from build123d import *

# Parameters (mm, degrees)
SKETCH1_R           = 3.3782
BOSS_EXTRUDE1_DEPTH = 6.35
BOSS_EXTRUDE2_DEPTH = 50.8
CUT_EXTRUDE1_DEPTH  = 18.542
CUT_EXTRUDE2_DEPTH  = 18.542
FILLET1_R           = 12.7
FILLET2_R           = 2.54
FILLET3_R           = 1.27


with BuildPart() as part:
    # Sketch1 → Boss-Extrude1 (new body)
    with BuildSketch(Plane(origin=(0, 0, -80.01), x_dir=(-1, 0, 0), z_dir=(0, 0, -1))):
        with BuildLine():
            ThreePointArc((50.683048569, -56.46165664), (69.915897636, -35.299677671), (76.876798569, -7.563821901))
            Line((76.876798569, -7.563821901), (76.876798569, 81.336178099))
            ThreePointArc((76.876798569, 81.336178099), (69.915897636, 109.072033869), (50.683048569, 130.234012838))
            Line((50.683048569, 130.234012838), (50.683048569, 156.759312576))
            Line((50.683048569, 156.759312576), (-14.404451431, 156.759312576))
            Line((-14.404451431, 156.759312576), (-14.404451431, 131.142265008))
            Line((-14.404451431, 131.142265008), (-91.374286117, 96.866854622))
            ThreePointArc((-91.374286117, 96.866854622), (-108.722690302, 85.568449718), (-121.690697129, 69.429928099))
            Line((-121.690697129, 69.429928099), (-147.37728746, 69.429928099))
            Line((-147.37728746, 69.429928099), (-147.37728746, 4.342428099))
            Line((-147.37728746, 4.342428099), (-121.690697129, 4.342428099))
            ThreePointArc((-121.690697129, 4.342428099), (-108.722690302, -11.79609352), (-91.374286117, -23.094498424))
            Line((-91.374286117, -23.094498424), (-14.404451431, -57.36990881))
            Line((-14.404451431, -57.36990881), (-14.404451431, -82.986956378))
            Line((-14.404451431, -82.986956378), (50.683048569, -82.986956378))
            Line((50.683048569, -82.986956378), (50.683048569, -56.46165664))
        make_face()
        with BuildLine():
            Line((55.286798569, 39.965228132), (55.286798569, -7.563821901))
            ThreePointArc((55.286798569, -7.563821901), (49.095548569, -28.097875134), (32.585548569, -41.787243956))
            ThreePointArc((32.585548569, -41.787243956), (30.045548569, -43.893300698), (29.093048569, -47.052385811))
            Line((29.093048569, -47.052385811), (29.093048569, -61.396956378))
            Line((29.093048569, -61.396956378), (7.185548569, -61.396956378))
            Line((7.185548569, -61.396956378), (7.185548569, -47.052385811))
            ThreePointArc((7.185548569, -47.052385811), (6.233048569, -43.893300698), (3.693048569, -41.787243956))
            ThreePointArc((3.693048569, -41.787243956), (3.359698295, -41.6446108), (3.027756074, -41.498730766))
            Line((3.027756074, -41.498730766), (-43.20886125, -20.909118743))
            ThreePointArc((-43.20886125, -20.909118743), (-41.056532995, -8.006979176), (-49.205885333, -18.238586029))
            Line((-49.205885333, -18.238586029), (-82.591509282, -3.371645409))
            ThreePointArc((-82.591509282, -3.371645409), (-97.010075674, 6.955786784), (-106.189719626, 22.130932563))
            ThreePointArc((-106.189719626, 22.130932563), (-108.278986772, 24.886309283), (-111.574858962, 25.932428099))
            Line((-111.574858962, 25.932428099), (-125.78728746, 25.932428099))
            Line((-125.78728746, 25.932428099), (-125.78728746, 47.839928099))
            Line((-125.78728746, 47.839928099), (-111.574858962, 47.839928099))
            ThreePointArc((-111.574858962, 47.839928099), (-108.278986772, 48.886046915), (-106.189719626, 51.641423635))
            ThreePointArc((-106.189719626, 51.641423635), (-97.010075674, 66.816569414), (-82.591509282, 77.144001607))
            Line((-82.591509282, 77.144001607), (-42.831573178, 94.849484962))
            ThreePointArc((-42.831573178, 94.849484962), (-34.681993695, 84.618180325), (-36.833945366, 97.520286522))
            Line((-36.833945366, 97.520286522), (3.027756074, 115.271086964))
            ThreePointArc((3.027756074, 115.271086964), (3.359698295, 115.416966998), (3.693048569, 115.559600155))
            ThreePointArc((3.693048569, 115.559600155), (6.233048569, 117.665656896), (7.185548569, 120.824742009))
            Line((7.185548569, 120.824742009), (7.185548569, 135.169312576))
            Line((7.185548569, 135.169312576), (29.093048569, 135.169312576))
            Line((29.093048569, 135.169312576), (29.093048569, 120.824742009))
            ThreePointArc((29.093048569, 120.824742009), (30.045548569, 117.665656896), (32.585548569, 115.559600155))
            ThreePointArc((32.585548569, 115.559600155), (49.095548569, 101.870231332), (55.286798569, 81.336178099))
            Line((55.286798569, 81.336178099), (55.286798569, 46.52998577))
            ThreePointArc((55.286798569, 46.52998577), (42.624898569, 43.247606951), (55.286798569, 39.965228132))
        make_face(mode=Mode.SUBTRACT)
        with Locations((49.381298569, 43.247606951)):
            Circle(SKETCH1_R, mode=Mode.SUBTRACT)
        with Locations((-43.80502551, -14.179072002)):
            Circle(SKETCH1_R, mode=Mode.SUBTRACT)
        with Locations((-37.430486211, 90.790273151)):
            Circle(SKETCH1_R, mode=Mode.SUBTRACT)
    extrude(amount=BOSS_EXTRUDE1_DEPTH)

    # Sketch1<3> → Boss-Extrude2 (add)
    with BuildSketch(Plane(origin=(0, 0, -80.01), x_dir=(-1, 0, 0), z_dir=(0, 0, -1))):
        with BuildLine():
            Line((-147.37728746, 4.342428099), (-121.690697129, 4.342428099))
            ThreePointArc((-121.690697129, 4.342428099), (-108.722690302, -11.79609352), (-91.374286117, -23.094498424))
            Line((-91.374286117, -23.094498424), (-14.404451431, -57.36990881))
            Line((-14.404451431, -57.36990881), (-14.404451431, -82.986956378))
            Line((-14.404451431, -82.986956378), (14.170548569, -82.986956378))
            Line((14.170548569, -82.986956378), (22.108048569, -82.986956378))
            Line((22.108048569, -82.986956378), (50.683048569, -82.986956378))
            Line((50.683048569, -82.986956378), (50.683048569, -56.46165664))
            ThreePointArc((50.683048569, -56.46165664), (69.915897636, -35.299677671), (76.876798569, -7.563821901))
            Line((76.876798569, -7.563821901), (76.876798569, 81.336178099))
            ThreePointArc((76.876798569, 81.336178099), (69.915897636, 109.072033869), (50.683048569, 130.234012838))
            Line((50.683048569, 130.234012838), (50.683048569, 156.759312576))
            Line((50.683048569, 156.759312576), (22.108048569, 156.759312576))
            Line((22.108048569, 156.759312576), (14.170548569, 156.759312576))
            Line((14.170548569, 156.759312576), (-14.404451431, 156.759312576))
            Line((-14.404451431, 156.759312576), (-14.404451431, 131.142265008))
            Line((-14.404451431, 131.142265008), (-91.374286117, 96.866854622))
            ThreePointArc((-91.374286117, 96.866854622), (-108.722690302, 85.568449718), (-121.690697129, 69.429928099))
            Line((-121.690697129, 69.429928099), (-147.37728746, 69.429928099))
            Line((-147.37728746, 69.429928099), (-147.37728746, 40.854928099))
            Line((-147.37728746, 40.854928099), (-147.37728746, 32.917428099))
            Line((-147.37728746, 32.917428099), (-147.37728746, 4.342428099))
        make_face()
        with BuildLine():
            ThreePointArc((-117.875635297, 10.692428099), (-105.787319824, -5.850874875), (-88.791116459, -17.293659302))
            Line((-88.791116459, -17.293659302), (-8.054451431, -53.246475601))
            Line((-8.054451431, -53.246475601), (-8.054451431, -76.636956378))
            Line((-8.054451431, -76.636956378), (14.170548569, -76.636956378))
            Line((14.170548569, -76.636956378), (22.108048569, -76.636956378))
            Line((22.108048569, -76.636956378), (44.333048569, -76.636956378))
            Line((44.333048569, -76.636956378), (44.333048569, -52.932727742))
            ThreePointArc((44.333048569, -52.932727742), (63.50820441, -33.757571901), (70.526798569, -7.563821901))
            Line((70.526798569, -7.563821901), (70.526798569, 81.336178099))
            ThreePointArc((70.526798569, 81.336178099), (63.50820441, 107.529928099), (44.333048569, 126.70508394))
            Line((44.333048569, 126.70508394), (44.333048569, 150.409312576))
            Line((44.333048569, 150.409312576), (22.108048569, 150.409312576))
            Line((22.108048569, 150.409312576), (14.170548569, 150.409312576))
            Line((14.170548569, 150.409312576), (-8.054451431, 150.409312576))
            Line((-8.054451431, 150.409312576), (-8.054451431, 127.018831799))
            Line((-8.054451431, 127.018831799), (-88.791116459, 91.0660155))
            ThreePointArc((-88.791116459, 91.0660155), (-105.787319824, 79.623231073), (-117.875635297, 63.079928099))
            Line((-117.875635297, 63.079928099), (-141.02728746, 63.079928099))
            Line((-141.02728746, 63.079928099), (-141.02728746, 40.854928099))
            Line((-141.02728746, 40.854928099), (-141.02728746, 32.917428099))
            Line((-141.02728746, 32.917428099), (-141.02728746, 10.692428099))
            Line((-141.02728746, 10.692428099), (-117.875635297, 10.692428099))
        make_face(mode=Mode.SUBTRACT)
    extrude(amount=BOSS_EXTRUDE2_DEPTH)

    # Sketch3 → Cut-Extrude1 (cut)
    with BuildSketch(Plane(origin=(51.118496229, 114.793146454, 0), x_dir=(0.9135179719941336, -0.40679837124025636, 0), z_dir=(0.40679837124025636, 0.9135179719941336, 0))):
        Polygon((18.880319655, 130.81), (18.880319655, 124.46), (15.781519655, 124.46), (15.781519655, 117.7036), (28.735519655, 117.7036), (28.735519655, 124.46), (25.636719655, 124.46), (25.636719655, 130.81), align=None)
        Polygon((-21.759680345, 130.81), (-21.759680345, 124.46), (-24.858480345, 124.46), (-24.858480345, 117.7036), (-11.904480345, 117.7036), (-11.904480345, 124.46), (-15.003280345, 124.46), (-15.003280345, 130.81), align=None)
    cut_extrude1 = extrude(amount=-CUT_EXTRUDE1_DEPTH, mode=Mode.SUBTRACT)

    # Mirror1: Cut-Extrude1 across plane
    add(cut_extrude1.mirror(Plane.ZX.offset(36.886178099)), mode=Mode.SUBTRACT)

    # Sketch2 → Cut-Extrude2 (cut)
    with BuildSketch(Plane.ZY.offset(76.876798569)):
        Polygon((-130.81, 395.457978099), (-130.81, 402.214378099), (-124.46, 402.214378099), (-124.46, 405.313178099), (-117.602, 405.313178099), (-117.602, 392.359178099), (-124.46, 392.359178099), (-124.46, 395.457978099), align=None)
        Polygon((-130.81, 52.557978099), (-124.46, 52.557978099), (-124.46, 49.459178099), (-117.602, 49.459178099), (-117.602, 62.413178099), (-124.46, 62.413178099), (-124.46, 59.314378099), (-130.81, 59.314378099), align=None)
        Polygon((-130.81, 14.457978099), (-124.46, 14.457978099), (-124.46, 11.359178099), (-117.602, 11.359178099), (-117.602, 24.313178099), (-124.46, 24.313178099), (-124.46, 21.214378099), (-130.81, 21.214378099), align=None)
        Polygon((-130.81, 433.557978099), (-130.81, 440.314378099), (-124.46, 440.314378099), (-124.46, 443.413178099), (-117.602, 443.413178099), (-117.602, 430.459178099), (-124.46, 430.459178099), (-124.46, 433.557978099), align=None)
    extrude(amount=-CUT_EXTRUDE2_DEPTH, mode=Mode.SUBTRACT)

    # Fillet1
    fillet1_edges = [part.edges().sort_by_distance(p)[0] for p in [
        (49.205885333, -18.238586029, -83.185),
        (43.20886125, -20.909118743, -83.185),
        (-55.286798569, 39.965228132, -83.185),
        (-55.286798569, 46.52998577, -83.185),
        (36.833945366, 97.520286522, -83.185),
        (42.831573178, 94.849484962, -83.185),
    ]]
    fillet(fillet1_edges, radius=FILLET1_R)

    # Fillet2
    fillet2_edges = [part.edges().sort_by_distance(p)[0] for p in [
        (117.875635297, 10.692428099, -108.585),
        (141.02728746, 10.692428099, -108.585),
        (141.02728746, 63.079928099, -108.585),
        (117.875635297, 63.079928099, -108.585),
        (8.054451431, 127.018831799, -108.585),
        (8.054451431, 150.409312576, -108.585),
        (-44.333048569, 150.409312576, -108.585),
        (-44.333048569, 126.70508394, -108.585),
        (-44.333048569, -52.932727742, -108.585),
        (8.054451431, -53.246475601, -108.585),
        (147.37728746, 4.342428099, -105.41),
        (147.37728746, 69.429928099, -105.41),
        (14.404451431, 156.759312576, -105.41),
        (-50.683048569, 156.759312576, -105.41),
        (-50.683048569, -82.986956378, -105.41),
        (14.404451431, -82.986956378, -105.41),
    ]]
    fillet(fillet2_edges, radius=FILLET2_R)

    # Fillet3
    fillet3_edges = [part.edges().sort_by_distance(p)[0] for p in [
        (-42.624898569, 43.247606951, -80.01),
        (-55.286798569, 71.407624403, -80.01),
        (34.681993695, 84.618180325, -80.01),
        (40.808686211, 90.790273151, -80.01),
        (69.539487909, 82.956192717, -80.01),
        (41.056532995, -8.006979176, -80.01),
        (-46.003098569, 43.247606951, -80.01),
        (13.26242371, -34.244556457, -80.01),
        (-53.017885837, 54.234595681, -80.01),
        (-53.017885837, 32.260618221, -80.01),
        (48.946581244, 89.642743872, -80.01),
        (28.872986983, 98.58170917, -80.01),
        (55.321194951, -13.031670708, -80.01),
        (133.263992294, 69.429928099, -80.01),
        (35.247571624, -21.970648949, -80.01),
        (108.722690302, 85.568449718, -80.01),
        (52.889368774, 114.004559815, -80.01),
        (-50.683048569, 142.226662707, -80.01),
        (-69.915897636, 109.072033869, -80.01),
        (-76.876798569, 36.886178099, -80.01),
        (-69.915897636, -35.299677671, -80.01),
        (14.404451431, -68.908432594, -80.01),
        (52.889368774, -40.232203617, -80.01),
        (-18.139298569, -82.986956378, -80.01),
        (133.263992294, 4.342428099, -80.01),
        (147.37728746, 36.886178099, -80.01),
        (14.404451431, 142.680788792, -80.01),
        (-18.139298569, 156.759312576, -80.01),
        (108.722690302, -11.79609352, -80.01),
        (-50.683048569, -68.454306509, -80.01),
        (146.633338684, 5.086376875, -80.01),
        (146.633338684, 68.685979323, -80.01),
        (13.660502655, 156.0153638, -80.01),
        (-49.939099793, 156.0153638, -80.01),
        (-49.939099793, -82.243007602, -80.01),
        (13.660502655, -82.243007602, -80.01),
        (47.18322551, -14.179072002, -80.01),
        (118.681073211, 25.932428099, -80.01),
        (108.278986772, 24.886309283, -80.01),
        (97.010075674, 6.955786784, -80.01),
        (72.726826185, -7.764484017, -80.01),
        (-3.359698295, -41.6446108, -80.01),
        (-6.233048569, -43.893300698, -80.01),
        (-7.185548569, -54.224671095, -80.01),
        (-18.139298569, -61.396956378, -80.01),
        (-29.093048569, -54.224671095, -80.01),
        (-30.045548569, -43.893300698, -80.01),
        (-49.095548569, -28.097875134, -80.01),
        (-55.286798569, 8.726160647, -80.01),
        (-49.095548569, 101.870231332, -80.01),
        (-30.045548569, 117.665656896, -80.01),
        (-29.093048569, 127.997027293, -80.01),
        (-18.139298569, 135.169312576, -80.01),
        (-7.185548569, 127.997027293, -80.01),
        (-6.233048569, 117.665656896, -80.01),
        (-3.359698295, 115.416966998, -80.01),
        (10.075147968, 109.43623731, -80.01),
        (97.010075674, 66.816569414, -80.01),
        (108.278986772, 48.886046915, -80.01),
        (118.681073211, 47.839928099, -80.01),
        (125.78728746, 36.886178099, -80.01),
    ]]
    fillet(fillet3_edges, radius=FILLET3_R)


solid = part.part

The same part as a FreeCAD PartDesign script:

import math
import FreeCAD as App
import Part
import Sketcher
Q = App.Units.Quantity


def edges_at(feature, points):
    """Names of the edges that pass closest to the given points."""
    edges = feature.Shape.Edges
    near = lambda p: min(range(len(edges)), key=lambda i: edges[i].distToShape(Part.Vertex(*p))[0])
    return sorted({f"Edge{near(p) + 1}" for p in points})


def add_polygon(sketch, points):
    """Adds a closed chain of lines whose ends are joined by coincident constraints."""
    first, n = sketch.GeometryCount, len(points)
    for a, b in zip(points, points[1:] + points[:1]):
        sketch.addGeometry(Part.LineSegment(App.Vector(*a, 0), App.Vector(*b, 0)), False)
    for i in range(n):
        sketch.addConstraint(Sketcher.Constraint("Coincident", first + i, 2, first + (i + 1) % n, 1))

doc = App.newDocument("Part")
body = doc.addObject("PartDesign::Body", "Body")

# Sketch on XY plane
sketch1 = body.newObject("Sketcher::SketchObject", "Sketch")
sketch1.AttachmentSupport = (doc.getObject("XY_Plane"), [""])
sketch1.MapMode = "FlatFace"
sketch1.AttachmentOffset = App.Placement(App.Vector(0, 0, -3.15 * 25.4), App.Rotation())
sketch1.addGeometry([
    Part.ArcOfCircle(Part.Circle(App.Vector(-18.139299, -7.563822, 0), App.Vector(0, 0, 1), 58.7375), math.radians(180), math.radians(236.354415)),  # 0
    Part.LineSegment(App.Vector(-76.876799, -7.563822, 0), App.Vector(-76.876799, 81.336178, 0)),  # 1
    Part.ArcOfCircle(Part.Circle(App.Vector(-18.139299, 81.336178, 0), App.Vector(0, 0, 1), 58.7375), math.radians(123.645585), math.radians(180)),  # 2
    Part.LineSegment(App.Vector(-50.683049, 130.234013, 0), App.Vector(-50.683049, 156.759313, 0)),  # 3
    Part.LineSegment(App.Vector(-50.683049, 156.759313, 0), App.Vector(14.404451, 156.759313, 0)),  # 4
    Part.LineSegment(App.Vector(14.404451, 156.759313, 0), App.Vector(14.404451, 131.142265, 0)),  # 5
    Part.LineSegment(App.Vector(14.404451, 131.142265, 0), App.Vector(91.374286, 96.866855, 0)),  # 6
    Part.ArcOfCircle(Part.Circle(App.Vector(64.664312, 36.886178, 0), App.Vector(0, 0, 1), 65.659), math.radians(29.712487), math.radians(65.996128)),  # 7
    Part.LineSegment(App.Vector(121.690697, 69.429928, 0), App.Vector(147.377287, 69.429928, 0)),  # 8
    Part.LineSegment(App.Vector(147.377287, 69.429928, 0), App.Vector(147.377287, 4.342428, 0)),  # 9
    Part.LineSegment(App.Vector(147.377287, 4.342428, 0), App.Vector(121.690697, 4.342428, 0)),  # 10
    Part.ArcOfCircle(Part.Circle(App.Vector(64.664312, 36.886178, 0), App.Vector(0, 0, 1), 65.659), math.radians(-65.996128), math.radians(-29.712487)),  # 11
    Part.LineSegment(App.Vector(91.374286, -23.094498, 0), App.Vector(14.404451, -57.369909, 0)),  # 12
    Part.LineSegment(App.Vector(14.404451, -57.369909, 0), App.Vector(14.404451, -82.986956, 0)),  # 13
    Part.LineSegment(App.Vector(14.404451, -82.986956, 0), App.Vector(-50.683049, -82.986956, 0)),  # 14
    Part.LineSegment(App.Vector(-50.683049, -82.986956, 0), App.Vector(-50.683049, -56.461657, 0)),  # 15
    Part.Circle(App.Vector(43.805026, -14.179072, 0), App.Vector(0, 0, 1), 3.3782),  # 16
    Part.Circle(App.Vector(37.430486, 90.790273, 0), App.Vector(0, 0, 1), 3.3782),  # 17
    Part.ArcOfCircle(Part.Circle(App.Vector(-49.381299, 43.247607, 0), App.Vector(0, 0, 1), 6.7564), math.radians(-150.933939), math.radians(150.933939)),  # 18
    Part.LineSegment(App.Vector(-55.286799, 39.965228, 0), App.Vector(-55.286799, -7.563822, 0)),  # 19
    Part.ArcOfCircle(Part.Circle(App.Vector(-18.139299, -7.563822, 0), App.Vector(0, 0, 1), 37.1475), math.radians(180), math.radians(247.11462)),  # 20
    Part.ArcOfCircle(Part.Circle(App.Vector(-34.808049, -47.052386, 0), App.Vector(0, 0, 1), 5.715), math.radians(0), math.radians(67.11462)),  # 21
    Part.LineSegment(App.Vector(-29.093049, -47.052386, 0), App.Vector(-29.093049, -61.396956, 0)),  # 22
    Part.LineSegment(App.Vector(-29.093049, -61.396956, 0), App.Vector(-7.185549, -61.396956, 0)),  # 23
    Part.LineSegment(App.Vector(-7.185549, -61.396956, 0), App.Vector(-7.185549, -47.052386, 0)),  # 24
    Part.ArcOfCircle(Part.Circle(App.Vector(-1.470549, -47.052386, 0), App.Vector(0, 0, 1), 5.715), math.radians(112.88538), math.radians(180)),  # 25
    Part.ArcOfCircle(Part.Circle(App.Vector(-18.139298, -7.563822, 0), App.Vector(0, 0, 1), 37.147499), math.radians(-67.11462), math.radians(-65.996129)),  # 26
    Part.LineSegment(App.Vector(-3.027756, -41.498731, 0), App.Vector(43.208861, -20.909119, 0)),  # 27
    Part.ArcOfCircle(Part.Circle(App.Vector(43.805026, -14.179072, 0), App.Vector(0, 0, 1), 6.7564), math.radians(-36.930068), math.radians(264.937811)),  # 28
    Part.LineSegment(App.Vector(49.205885, -18.238586, 0), App.Vector(82.591509, -3.371645, 0)),  # 29
    Part.ArcOfCircle(Part.Circle(App.Vector(64.664312, 36.886178, 0), App.Vector(0, 0, 1), 44.069), math.radians(-65.996128), math.radians(-19.561679)),  # 30
    Part.ArcOfCircle(Part.Circle(App.Vector(111.574859, 20.217428, 0), App.Vector(0, 0, 1), 5.715), math.radians(90), math.radians(160.438321)),  # 31
    Part.LineSegment(App.Vector(111.574859, 25.932428, 0), App.Vector(125.787287, 25.932428, 0)),  # 32
    Part.LineSegment(App.Vector(125.787287, 25.932428, 0), App.Vector(125.787287, 47.839928, 0)),  # 33
    Part.LineSegment(App.Vector(125.787287, 47.839928, 0), App.Vector(111.574859, 47.839928, 0)),  # 34
    Part.ArcOfCircle(Part.Circle(App.Vector(111.574859, 53.554928, 0), App.Vector(0, 0, 1), 5.715), math.radians(-160.438321), math.radians(-90)),  # 35
    Part.ArcOfCircle(Part.Circle(App.Vector(64.664312, 36.886178, 0), App.Vector(0, 0, 1), 44.069), math.radians(19.561679), math.radians(65.996128)),  # 36
    Part.LineSegment(App.Vector(82.591509, 77.144002, 0), App.Vector(42.831573, 94.849485, 0)),  # 37
    Part.ArcOfCircle(Part.Circle(App.Vector(37.430486, 90.790273, 0), App.Vector(0, 0, 1), 6.7564), math.radians(95.065395), math.radians(396.926862)),  # 38
    Part.LineSegment(App.Vector(36.833945, 97.520287, 0), App.Vector(-3.027756, 115.271087, 0)),  # 39
    Part.ArcOfCircle(Part.Circle(App.Vector(-18.139302, 81.33617, 0), App.Vector(0, 0, 1), 37.147509), math.radians(65.996129), math.radians(67.114619)),  # 40
    Part.ArcOfCircle(Part.Circle(App.Vector(-1.470549, 120.824742, 0), App.Vector(0, 0, 1), 5.715), math.radians(180), math.radians(247.11462)),  # 41
    Part.LineSegment(App.Vector(-7.185549, 120.824742, 0), App.Vector(-7.185549, 135.169313, 0)),  # 42
    Part.LineSegment(App.Vector(-7.185549, 135.169313, 0), App.Vector(-29.093049, 135.169313, 0)),  # 43
    Part.LineSegment(App.Vector(-29.093049, 135.169313, 0), App.Vector(-29.093049, 120.824742, 0)),  # 44
    Part.ArcOfCircle(Part.Circle(App.Vector(-34.808049, 120.824742, 0), App.Vector(0, 0, 1), 5.715), math.radians(-67.11462), math.radians(0)),  # 45
    Part.ArcOfCircle(Part.Circle(App.Vector(-18.139299, 81.336178, 0), App.Vector(0, 0, 1), 37.1475), math.radians(112.88538), math.radians(180)),  # 46
    Part.LineSegment(App.Vector(-55.286799, 81.336178, 0), App.Vector(-55.286799, 46.529986, 0)),  # 47
    Part.Circle(App.Vector(-49.381299, 43.247607, 0), App.Vector(0, 0, 1), 3.3782),  # 48
], False)
sketch1.addConstraint([
    Sketcher.Constraint("Tangent", 0, 1, 1, 1),
    Sketcher.Constraint("Tangent", 1, 2, 2, 2),
    Sketcher.Constraint("Coincident", 2, 1, 3, 1),
    Sketcher.Constraint("Coincident", 3, 2, 4, 1),
    Sketcher.Constraint("Coincident", 4, 2, 5, 1),
    Sketcher.Constraint("Coincident", 5, 2, 6, 1),
    Sketcher.Constraint("Tangent", 6, 2, 7, 2),
    Sketcher.Constraint("Coincident", 7, 1, 8, 1),
    Sketcher.Constraint("Coincident", 8, 2, 9, 1),
    Sketcher.Constraint("Coincident", 9, 2, 10, 1),
    Sketcher.Constraint("Coincident", 10, 2, 11, 2),
    Sketcher.Constraint("Tangent", 11, 1, 12, 1),
    Sketcher.Constraint("Coincident", 12, 2, 13, 1),
    Sketcher.Constraint("Coincident", 13, 2, 14, 1),
    Sketcher.Constraint("Coincident", 14, 2, 15, 1),
    Sketcher.Constraint("Coincident", 15, 2, 0, 2),
    Sketcher.Constraint("Coincident", 18, 1, 19, 1),
    Sketcher.Constraint("Tangent", 19, 2, 20, 1),
    Sketcher.Constraint("Tangent", 20, 2, 21, 2),
    Sketcher.Constraint("Tangent", 21, 1, 22, 1),
    Sketcher.Constraint("Coincident", 22, 2, 23, 1),
    Sketcher.Constraint("Coincident", 23, 2, 24, 1),
    Sketcher.Constraint("Tangent", 24, 2, 25, 2),
    Sketcher.Constraint("Tangent", 25, 1, 26, 1),
    Sketcher.Constraint("Tangent", 26, 2, 27, 1),
    Sketcher.Constraint("Coincident", 27, 2, 28, 2),
    Sketcher.Constraint("Coincident", 28, 1, 29, 1),
    Sketcher.Constraint("Tangent", 29, 2, 30, 1),
    Sketcher.Constraint("Tangent", 30, 2, 31, 2),
    Sketcher.Constraint("Tangent", 31, 1, 32, 1),
    Sketcher.Constraint("Coincident", 32, 2, 33, 1),
    Sketcher.Constraint("Coincident", 33, 2, 34, 1),
    Sketcher.Constraint("Tangent", 34, 2, 35, 2),
    Sketcher.Constraint("Tangent", 35, 1, 36, 1),
    Sketcher.Constraint("Tangent", 36, 2, 37, 1),
    Sketcher.Constraint("Coincident", 37, 2, 38, 2),
    Sketcher.Constraint("Coincident", 38, 1, 39, 1),
    Sketcher.Constraint("Tangent", 39, 2, 40, 1),
    Sketcher.Constraint("Tangent", 40, 2, 41, 2),
    Sketcher.Constraint("Tangent", 41, 1, 42, 1),
    Sketcher.Constraint("Coincident", 42, 2, 43, 1),
    Sketcher.Constraint("Coincident", 43, 2, 44, 1),
    Sketcher.Constraint("Tangent", 44, 2, 45, 2),
    Sketcher.Constraint("Tangent", 45, 1, 46, 1),
    Sketcher.Constraint("Tangent", 46, 2, 47, 1),
    Sketcher.Constraint("Coincident", 47, 2, 18, 2),
    Sketcher.Constraint("Vertical", 1),
    Sketcher.Constraint("Vertical", 3),
    Sketcher.Constraint("Horizontal", 4),
    Sketcher.Constraint("Vertical", 5),
    Sketcher.Constraint("Horizontal", 8),
    Sketcher.Constraint("Vertical", 9),
    Sketcher.Constraint("Horizontal", 10),
    Sketcher.Constraint("Vertical", 13),
    Sketcher.Constraint("Horizontal", 14),
    Sketcher.Constraint("Vertical", 15),
    Sketcher.Constraint("Vertical", 19),
    Sketcher.Constraint("Vertical", 22),
    Sketcher.Constraint("Horizontal", 23),
    Sketcher.Constraint("Vertical", 24),
    Sketcher.Constraint("Horizontal", 32),
    Sketcher.Constraint("Vertical", 33),
    Sketcher.Constraint("Horizontal", 34),
    Sketcher.Constraint("Vertical", 42),
    Sketcher.Constraint("Horizontal", 43),
    Sketcher.Constraint("Vertical", 44),
    Sketcher.Constraint("Vertical", 47),
    Sketcher.Constraint("Coincident", 11, 3, 7, 3),
    Sketcher.Constraint("Coincident", 20, 3, 0, 3),
    Sketcher.Constraint("Coincident", 26, 3, 0, 3),
    Sketcher.Constraint("Coincident", 28, 3, 16, 3),
    Sketcher.Constraint("Coincident", 30, 3, 7, 3),
    Sketcher.Constraint("Coincident", 36, 3, 7, 3),
    Sketcher.Constraint("Coincident", 38, 3, 17, 3),
    Sketcher.Constraint("Coincident", 40, 3, 2, 3),
    Sketcher.Constraint("Coincident", 46, 3, 2, 3),
    Sketcher.Constraint("Coincident", 48, 3, 18, 3),
    Sketcher.Constraint("Equal", 0, 2),
    Sketcher.Constraint("Equal", 7, 11),
    Sketcher.Constraint("Equal", 16, 17),
    Sketcher.Constraint("Equal", 21, 25),
    Sketcher.Constraint("Equal", 20, 26),
    Sketcher.Constraint("Equal", 18, 28),
    Sketcher.Constraint("Equal", 25, 31),
    Sketcher.Constraint("Equal", 31, 35),
    Sketcher.Constraint("Equal", 30, 36),
    Sketcher.Constraint("Equal", 28, 38),
    Sketcher.Constraint("Equal", 35, 41),
    Sketcher.Constraint("Equal", 41, 45),
    Sketcher.Constraint("Equal", 26, 46),
    Sketcher.Constraint("Equal", 17, 48),
    Sketcher.Constraint("Parallel", 12, 27),
    Sketcher.Constraint("Parallel", 27, 29),
    Sketcher.Constraint("Parallel", 6, 37),
    Sketcher.Constraint("Parallel", 37, 39),
    Sketcher.Constraint("Horizontal", 21, 3, 25, 3),
    Sketcher.Constraint("Horizontal", 41, 3, 45, 3),
    Sketcher.Constraint("Horizontal", 40, 2, 45, 1),
    Sketcher.Constraint("Vertical", 31, 3, 35, 3),
    Sketcher.Constraint("Vertical", 25, 3, 41, 3),
    Sketcher.Constraint("Vertical", 7, 1, 10, 2),
    Sketcher.Constraint("Vertical", 6, 2, 11, 1),
    Sketcher.Constraint("Vertical", 5, 2, 12, 2),
    Sketcher.Constraint("Vertical", 3, 2, 14, 2),
    Sketcher.Constraint("Equal", 14, 9),
    Sketcher.Constraint("Equal", 5, 13),
    Sketcher.Constraint("Equal", 3, 15),
    Sketcher.Constraint("Equal", 43, 33),
    Sketcher.Constraint("Equal", 24, 42),
    Sketcher.Constraint("Diameter", 16, Q("0.266 in")),
    Sketcher.Constraint("DistanceY", 1, 1, 1, 2, Q("3.5 in")),
    Sketcher.Constraint("Radius", 0, Q("2.3125 in")),
    Sketcher.Constraint("Radius", 7, Q("2.585 in")),
    Sketcher.Constraint("Radius", 18, Q("0.266 in")),
    Sketcher.Constraint("Radius", 21, Q("0.225 in")),
    Sketcher.Constraint("Radius", 30, Q("1.735 in")),
    Sketcher.Constraint("Radius", 20, Q("1.4625 in")),
    Sketcher.Constraint("DistanceX", 4, 1, 4, 2, Q("2.5625 in")),
    Sketcher.Constraint("DistanceX", 23, 1, 23, 2, Q("0.8625 in")),
    Sketcher.Constraint("DistanceY", 3, 1, 3, 2, 26.5253),
    Sketcher.Constraint("DistanceY", 15, 2, -1, 1, Q("2.2228999 in")),
    Sketcher.Constraint("Distance", 27, 50.613802),
    Sketcher.Constraint("DistanceX", 8, 1, 8, 2, 25.68659),
    Sketcher.Constraint("DistanceX", 32, 1, 32, 2, 14.212428),
    Sketcher.Constraint("DistanceY", 19, 2, 19, 1, 47.52905),
    Sketcher.Constraint("DistanceY", 22, 2, 22, 1, 14.344571),
    Sketcher.Constraint("DistanceX", 0, 3, -1, 1, 18.139299),
    Sketcher.Constraint("DistanceX", 18, 3, -1, 1, 49.381299),
    Sketcher.Constraint("DistanceY", 11, 1, -1, 1, 23.094498),
    Sketcher.Constraint("DistanceY", -1, 1, 36, 2, 77.144002),
    Sketcher.Constraint("Distance", 6, 84.256508),
    Sketcher.Constraint("Distance", 29, 36.546215),
    Sketcher.Constraint("Distance", 37, 43.523978),
    Sketcher.Constraint("Distance", 39, 43.635377),
])
pad1 = body.newObject("PartDesign::Pad", "Pad")
pad1.Profile = sketch1
pad1.Length = Q("0.25 in")
pad1.Reversed = True

# Sketch on XY plane
sketch2 = body.newObject("Sketcher::SketchObject", "Sketch001")
sketch2.AttachmentSupport = (doc.getObject("XY_Plane"), [""])
sketch2.MapMode = "FlatFace"
sketch2.AttachmentOffset = App.Placement(App.Vector(0, 0, -3.15 * 25.4), App.Rotation())
sketch2.addGeometry([
    Part.LineSegment(App.Vector(147.377287, 4.342428, 0), App.Vector(121.690697, 4.342428, 0)),  # 0
    Part.ArcOfCircle(Part.Circle(App.Vector(64.664312, 36.886178, 0), App.Vector(0, 0, 1), 65.659), math.radians(-65.996128), math.radians(-29.712487)),  # 1
    Part.LineSegment(App.Vector(91.374286, -23.094498, 0), App.Vector(14.404451, -57.369909, 0)),  # 2
    Part.LineSegment(App.Vector(14.404451, -57.369909, 0), App.Vector(14.404451, -82.986956, 0)),  # 3
    Part.LineSegment(App.Vector(14.404451, -82.986956, 0), App.Vector(-50.683049, -82.986956, 0)),  # 4
    Part.LineSegment(App.Vector(-50.683049, -82.986956, 0), App.Vector(-50.683049, -56.461657, 0)),  # 5
    Part.ArcOfCircle(Part.Circle(App.Vector(-18.139299, -7.563822, 0), App.Vector(0, 0, 1), 58.7375), math.radians(180), math.radians(236.354415)),  # 6
    Part.LineSegment(App.Vector(-76.876799, -7.563822, 0), App.Vector(-76.876799, 81.336178, 0)),  # 7
    Part.ArcOfCircle(Part.Circle(App.Vector(-18.139299, 81.336178, 0), App.Vector(0, 0, 1), 58.7375), math.radians(123.645585), math.radians(180)),  # 8
    Part.LineSegment(App.Vector(-50.683049, 130.234013, 0), App.Vector(-50.683049, 156.759313, 0)),  # 9
    Part.LineSegment(App.Vector(-50.683049, 156.759313, 0), App.Vector(14.404451, 156.759313, 0)),  # 10
    Part.LineSegment(App.Vector(14.404451, 156.759313, 0), App.Vector(14.404451, 131.142265, 0)),  # 11
    Part.LineSegment(App.Vector(14.404451, 131.142265, 0), App.Vector(91.374286, 96.866855, 0)),  # 12
    Part.ArcOfCircle(Part.Circle(App.Vector(64.664312, 36.886178, 0), App.Vector(0, 0, 1), 65.659), math.radians(29.712487), math.radians(65.996128)),  # 13
    Part.LineSegment(App.Vector(121.690697, 69.429928, 0), App.Vector(147.377287, 69.429928, 0)),  # 14
    Part.LineSegment(App.Vector(147.377287, 69.429928, 0), App.Vector(147.377287, 4.342428, 0)),  # 15
    Part.ArcOfCircle(Part.Circle(App.Vector(64.664312, 36.886178, 0), App.Vector(0, 0, 1), 59.309), math.radians(-65.996128), math.radians(-26.20913)),  # 16
    Part.LineSegment(App.Vector(117.875635, 10.692428, 0), App.Vector(141.027287, 10.692428, 0)),  # 17
    Part.LineSegment(App.Vector(141.027287, 10.692428, 0), App.Vector(141.027287, 63.079928, 0)),  # 18
    Part.LineSegment(App.Vector(141.027287, 63.079928, 0), App.Vector(117.875635, 63.079928, 0)),  # 19
    Part.ArcOfCircle(Part.Circle(App.Vector(64.664312, 36.886178, 0), App.Vector(0, 0, 1), 59.309), math.radians(26.20913), math.radians(65.996128)),  # 20
    Part.LineSegment(App.Vector(88.791116, 91.066016, 0), App.Vector(8.054451, 127.018832, 0)),  # 21
    Part.LineSegment(App.Vector(8.054451, 127.018832, 0), App.Vector(8.054451, 150.409313, 0)),  # 22
    Part.LineSegment(App.Vector(8.054451, 150.409313, 0), App.Vector(-44.333049, 150.409313, 0)),  # 23
    Part.LineSegment(App.Vector(-44.333049, 150.409313, 0), App.Vector(-44.333049, 126.705084, 0)),  # 24
    Part.ArcOfCircle(Part.Circle(App.Vector(-18.139299, 81.336178, 0), App.Vector(0, 0, 1), 52.3875), math.radians(120), math.radians(180)),  # 25
    Part.LineSegment(App.Vector(-70.526799, 81.336178, 0), App.Vector(-70.526799, -7.563822, 0)),  # 26
    Part.ArcOfCircle(Part.Circle(App.Vector(-18.139299, -7.563822, 0), App.Vector(0, 0, 1), 52.3875), math.radians(180), math.radians(240)),  # 27
    Part.LineSegment(App.Vector(-44.333049, -52.932728, 0), App.Vector(-44.333049, -76.636956, 0)),  # 28
    Part.LineSegment(App.Vector(-44.333049, -76.636956, 0), App.Vector(8.054451, -76.636956, 0)),  # 29
    Part.LineSegment(App.Vector(8.054451, -76.636956, 0), App.Vector(8.054451, -53.246476, 0)),  # 30
    Part.LineSegment(App.Vector(8.054451, -53.246476, 0), App.Vector(88.791116, -17.293659, 0)),  # 31
], False)
sketch2.addConstraint([
    Sketcher.Constraint("Coincident", 0, 2, 1, 2),
    Sketcher.Constraint("Tangent", 1, 1, 2, 1),
    Sketcher.Constraint("Coincident", 2, 2, 3, 1),
    Sketcher.Constraint("Coincident", 3, 2, 4, 1),
    Sketcher.Constraint("Coincident", 4, 2, 5, 1),
    Sketcher.Constraint("Coincident", 5, 2, 6, 2),
    Sketcher.Constraint("Tangent", 6, 1, 7, 1),
    Sketcher.Constraint("Tangent", 7, 2, 8, 2),
    Sketcher.Constraint("Coincident", 8, 1, 9, 1),
    Sketcher.Constraint("Coincident", 9, 2, 10, 1),
    Sketcher.Constraint("Coincident", 10, 2, 11, 1),
    Sketcher.Constraint("Coincident", 11, 2, 12, 1),
    Sketcher.Constraint("Tangent", 12, 2, 13, 2),
    Sketcher.Constraint("Coincident", 13, 1, 14, 1),
    Sketcher.Constraint("Coincident", 14, 2, 15, 1),
    Sketcher.Constraint("Coincident", 15, 2, 0, 1),
    Sketcher.Constraint("Coincident", 16, 2, 17, 1),
    Sketcher.Constraint("Coincident", 17, 2, 18, 1),
    Sketcher.Constraint("Coincident", 18, 2, 19, 1),
    Sketcher.Constraint("Coincident", 19, 2, 20, 1),
    Sketcher.Constraint("Tangent", 20, 2, 21, 1),
    Sketcher.Constraint("Coincident", 21, 2, 22, 1),
    Sketcher.Constraint("Coincident", 22, 2, 23, 1),
    Sketcher.Constraint("Coincident", 23, 2, 24, 1),
    Sketcher.Constraint("Coincident", 24, 2, 25, 1),
    Sketcher.Constraint("Tangent", 25, 2, 26, 1),
    Sketcher.Constraint("Tangent", 26, 2, 27, 1),
    Sketcher.Constraint("Coincident", 27, 2, 28, 1),
    Sketcher.Constraint("Coincident", 28, 2, 29, 1),
    Sketcher.Constraint("Coincident", 29, 2, 30, 1),
    Sketcher.Constraint("Coincident", 30, 2, 31, 1),
    Sketcher.Constraint("Tangent", 31, 2, 16, 1),
    Sketcher.Constraint("Horizontal", 0),
    Sketcher.Constraint("Vertical", 3),
    Sketcher.Constraint("Horizontal", 4),
    Sketcher.Constraint("Vertical", 5),
    Sketcher.Constraint("Vertical", 7),
    Sketcher.Constraint("Vertical", 9),
    Sketcher.Constraint("Horizontal", 10),
    Sketcher.Constraint("Vertical", 11),
    Sketcher.Constraint("Horizontal", 14),
    Sketcher.Constraint("Vertical", 15),
    Sketcher.Constraint("Horizontal", 17),
    Sketcher.Constraint("Vertical", 18),
    Sketcher.Constraint("Horizontal", 19),
    Sketcher.Constraint("Vertical", 22),
    Sketcher.Constraint("Horizontal", 23),
    Sketcher.Constraint("Vertical", 24),
    Sketcher.Constraint("Vertical", 26),
    Sketcher.Constraint("Vertical", 28),
    Sketcher.Constraint("Horizontal", 29),
    Sketcher.Constraint("Vertical", 30),
    Sketcher.Constraint("Coincident", 13, 3, 1, 3),
    Sketcher.Constraint("Coincident", 16, 3, 1, 3),
    Sketcher.Constraint("Coincident", 20, 3, 1, 3),
    Sketcher.Constraint("Coincident", 25, 3, 8, 3),
    Sketcher.Constraint("Coincident", 27, 3, 6, 3),
    Sketcher.Constraint("Equal", 6, 8),
    Sketcher.Constraint("Equal", 1, 13),
    Sketcher.Constraint("Equal", 16, 20),
    Sketcher.Constraint("Parallel", 12, 21),
    Sketcher.Constraint("Parallel", 2, 31),
    Sketcher.Constraint("Vertical", 5, 2, 8, 1),
    Sketcher.Constraint("Vertical", 3, 2, 10, 2),
    Sketcher.Constraint("Vertical", 1, 1, 12, 2),
    Sketcher.Constraint("Vertical", 0, 2, 13, 1),
    Sketcher.Constraint("Vertical", 16, 2, 19, 2),
    Sketcher.Constraint("Vertical", 24, 2, 27, 2),
    Sketcher.Constraint("Vertical", 22, 2, 29, 2),
    Sketcher.Constraint("Equal", 5, 9),
    Sketcher.Constraint("Equal", 3, 11),
    Sketcher.Constraint("Equal", 10, 15),
    Sketcher.Constraint("Equal", 29, 18),
    Sketcher.Constraint("Equal", 24, 28),
    Sketcher.Constraint("DistanceY", 7, 1, 7, 2, Q("3.5 in")),
    Sketcher.Constraint("Radius", 1, Q("2.585 in")),
    Sketcher.Constraint("Radius", 6, Q("2.3125 in")),
    Sketcher.Constraint("Radius", 16, Q("2.335 in")),
    Sketcher.Constraint("Radius", 25, Q("2.0625 in")),
    Sketcher.Constraint("DistanceX", 4, 2, 4, 1, Q("2.5625 in")),
    Sketcher.Constraint("DistanceX", 23, 2, 23, 1, Q("2.0625 in")),
    Sketcher.Constraint("DistanceX", 17, 2, 15, 2, Q("0.25 in")),
    Sketcher.Constraint("DistanceX", 21, 2, 11, 2, Q("0.25 in")),
    Sketcher.Constraint("DistanceY", 22, 2, 10, 2, Q("0.25 in")),
    Sketcher.Constraint("DistanceX", 27, 3, 2, 2, Q("1.28125 in")),
    Sketcher.Constraint("DistanceY", 5, 1, 5, 2, 26.5253),
    Sketcher.Constraint("DistanceY", 5, 2, -1, 1, Q("2.2228999 in")),
    Sketcher.Constraint("DistanceX", 0, 2, 0, 1, 25.68659),
    Sketcher.Constraint("DistanceY", 22, 1, 22, 2, 23.390481),
    Sketcher.Constraint("DistanceX", 6, 3, -1, 1, 18.139299),
    Sketcher.Constraint("DistanceX", 12, 2, 14, 2, 56.003001),
])
pad2 = body.newObject("PartDesign::Pad", "Pad001")
pad2.Profile = sketch2
pad2.Length = Q("2 in")
pad2.Reversed = True

# Sketch on an angled plane
sketch3 = body.newObject("Sketcher::SketchObject", "Sketch002")
sketch3.Placement = App.Placement(App.Vector(51.118496, 114.793146, 0), App.Rotation(App.Vector(0.913517972, -0.406798371, 0), App.Vector(0, 0, -1), App.Vector(0.406798371, 0.913517972, 0), "ZXY"))
add_polygon(sketch3, [(18.88032, 130.81), (18.88032, 124.46), (15.78152, 124.46), (15.78152, 117.7036), (28.73552, 117.7036), (28.73552, 124.46), (25.63672, 124.46), (25.63672, 130.81)])  # lines 0-7
add_polygon(sketch3, [(-21.75968, 130.81), (-21.75968, 124.46), (-24.85848, 124.46), (-24.85848, 117.7036), (-11.90448, 117.7036), (-11.90448, 124.46), (-15.00328, 124.46), (-15.00328, 130.81)])  # lines 8-15
sketch3.addConstraint([
    Sketcher.Constraint("Vertical", 0),
    Sketcher.Constraint("Horizontal", 1),
    Sketcher.Constraint("Vertical", 2),
    Sketcher.Constraint("Horizontal", 3),
    Sketcher.Constraint("Vertical", 4),
    Sketcher.Constraint("Horizontal", 5),
    Sketcher.Constraint("Vertical", 6),
    Sketcher.Constraint("Horizontal", 7),
    Sketcher.Constraint("Vertical", 8),
    Sketcher.Constraint("Horizontal", 9),
    Sketcher.Constraint("Vertical", 10),
    Sketcher.Constraint("Horizontal", 11),
    Sketcher.Constraint("Vertical", 12),
    Sketcher.Constraint("Horizontal", 13),
    Sketcher.Constraint("Vertical", 14),
    Sketcher.Constraint("Horizontal", 15),
    Sketcher.Constraint("Horizontal", 1, 2, 4, 2),
    Sketcher.Constraint("Horizontal", 5, 2, 8, 2),
    Sketcher.Constraint("Horizontal", 3, 2, 10, 2),
    Sketcher.Constraint("Horizontal", 9, 2, 12, 2),
    Sketcher.Constraint("Horizontal", 7, 2, 14, 2),
    Sketcher.Constraint("Equal", 1, 5),
    Sketcher.Constraint("Equal", 5, 9),
    Sketcher.Constraint("Equal", 3, 11),
    Sketcher.Constraint("Equal", 9, 13),
    Sketcher.Constraint("Equal", 15, 2),
    Sketcher.Constraint("DistanceX", 3, 1, 3, 2, Q("0.51 in")),
    Sketcher.Constraint("DistanceY", 0, 2, 0, 1, Q("0.25 in")),
    Sketcher.Constraint("DistanceY", -1, 1, 0, 2, Q("4.9 in")),
    Sketcher.Constraint("DistanceX", 8, 2, 0, 2, Q("1.6 in")),
    Sketcher.Constraint("DistanceX", 1, 2, 1, 1, Q("0.122 in")),
    Sketcher.Constraint("DistanceX", -1, 1, 0, 2, 18.88032),
])
pocket1 = body.newObject("PartDesign::Pocket", "Pocket")
pocket1.Profile = sketch3
pocket1.Length = Q("0.73 in")
doc.recompute()

datumplane = body.newObject("PartDesign::Plane", "DatumPlane")
datumplane.AttachmentSupport = (doc.getObject("XZ_Plane"), [""])
datumplane.MapMode = "FlatFace"
datumplane.AttachmentOffset = App.Placement(App.Vector(0, 0, -36.886178), App.Rotation())
mirrored = body.newObject("PartDesign::Mirrored", "Mirrored")
mirrored.Originals = [pocket1]
mirrored.MirrorPlane = (datumplane, [""])
body.Tip = mirrored

# Sketch on YZ plane
sketch4 = body.newObject("Sketcher::SketchObject", "Sketch003")
sketch4.AttachmentSupport = (doc.getObject("YZ_Plane"), [""])
sketch4.MapMode = "FlatFace"
sketch4.AttachmentOffset = App.Placement(App.Vector(0, 0, -76.876799), App.Rotation())
add_polygon(sketch4, [(402.214378, -130.81), (395.457978, -130.81), (395.457978, -124.46), (392.359178, -124.46), (392.359178, -117.602), (405.313178, -117.602), (405.313178, -124.46), (402.214378, -124.46)])  # lines 0-7
add_polygon(sketch4, [(52.557978, -130.81), (52.557978, -124.46), (49.459178, -124.46), (49.459178, -117.602), (62.413178, -117.602), (62.413178, -124.46), (59.314378, -124.46), (59.314378, -130.81)])  # lines 8-15
add_polygon(sketch4, [(14.457978, -130.81), (14.457978, -124.46), (11.359178, -124.46), (11.359178, -117.602), (24.313178, -117.602), (24.313178, -124.46), (21.214378, -124.46), (21.214378, -130.81)])  # lines 16-23
add_polygon(sketch4, [(440.314378, -130.81), (433.557978, -130.81), (433.557978, -124.46), (430.459178, -124.46), (430.459178, -117.602), (443.413178, -117.602), (443.413178, -124.46), (440.314378, -124.46)])  # lines 24-31
sketch4.addConstraint([
    Sketcher.Constraint("Horizontal", 0),
    Sketcher.Constraint("Vertical", 1),
    Sketcher.Constraint("Horizontal", 2),
    Sketcher.Constraint("Vertical", 3),
    Sketcher.Constraint("Horizontal", 4),
    Sketcher.Constraint("Vertical", 5),
    Sketcher.Constraint("Horizontal", 6),
    Sketcher.Constraint("Vertical", 7),
    Sketcher.Constraint("Vertical", 8),
    Sketcher.Constraint("Horizontal", 9),
    Sketcher.Constraint("Vertical", 10),
    Sketcher.Constraint("Horizontal", 11),
    Sketcher.Constraint("Vertical", 12),
    Sketcher.Constraint("Horizontal", 13),
    Sketcher.Constraint("Vertical", 14),
    Sketcher.Constraint("Horizontal", 15),
    Sketcher.Constraint("Vertical", 16),
    Sketcher.Constraint("Horizontal", 17),
    Sketcher.Constraint("Vertical", 18),
    Sketcher.Constraint("Horizontal", 19),
    Sketcher.Constraint("Vertical", 20),
    Sketcher.Constraint("Horizontal", 21),
    Sketcher.Constraint("Vertical", 22),
    Sketcher.Constraint("Horizontal", 23),
    Sketcher.Constraint("Horizontal", 24),
    Sketcher.Constraint("Vertical", 25),
    Sketcher.Constraint("Horizontal", 26),
    Sketcher.Constraint("Vertical", 27),
    Sketcher.Constraint("Horizontal", 28),
    Sketcher.Constraint("Vertical", 29),
    Sketcher.Constraint("Horizontal", 30),
    Sketcher.Constraint("Vertical", 31),
    Sketcher.Constraint("Horizontal", 2, 2, 5, 2),
    Sketcher.Constraint("Horizontal", 6, 2, 8, 2),
    Sketcher.Constraint("Horizontal", 4, 2, 10, 2),
    Sketcher.Constraint("Horizontal", 9, 2, 12, 2),
    Sketcher.Constraint("Horizontal", 7, 2, 14, 2),
    Sketcher.Constraint("Horizontal", 13, 2, 16, 2),
    Sketcher.Constraint("Horizontal", 11, 2, 18, 2),
    Sketcher.Constraint("Horizontal", 17, 2, 20, 2),
    Sketcher.Constraint("Horizontal", 15, 2, 22, 2),
    Sketcher.Constraint("Horizontal", 23, 2, 24, 2),
    Sketcher.Constraint("Horizontal", 21, 2, 25, 2),
    Sketcher.Constraint("Horizontal", 19, 2, 27, 2),
    Sketcher.Constraint("Horizontal", 26, 2, 29, 2),
    Sketcher.Constraint("Equal", 2, 6),
    Sketcher.Constraint("Equal", 6, 9),
    Sketcher.Constraint("Equal", 4, 11),
    Sketcher.Constraint("Equal", 9, 13),
    Sketcher.Constraint("Equal", 13, 17),
    Sketcher.Constraint("Equal", 11, 19),
    Sketcher.Constraint("Equal", 17, 21),
    Sketcher.Constraint("Equal", 23, 24),
    Sketcher.Constraint("Equal", 21, 26),
    Sketcher.Constraint("Equal", 19, 28),
    Sketcher.Constraint("DistanceX", 4, 1, 4, 2, Q("0.51 in")),
    Sketcher.Constraint("DistanceY", 1, 1, 1, 2, Q("0.25 in")),
    Sketcher.Constraint("DistanceY", 3, 1, 3, 2, Q("0.27 in")),
    Sketcher.Constraint("DistanceY", 1, 2, -1, 1, Q("4.9 in")),
    Sketcher.Constraint("DistanceX", 8, 2, 1, 2, Q("13.5 in")),
    Sketcher.Constraint("DistanceX", 16, 2, 8, 2, Q("1.5 in")),
    Sketcher.Constraint("DistanceX", 0, 2, 24, 2, Q("1.5 in")),
    Sketcher.Constraint("DistanceX", 0, 2, 0, 1, Q("0.266 in")),
    Sketcher.Constraint("DistanceX", -1, 1, 0, 2, 395.457978),
])
pocket2 = body.newObject("PartDesign::Pocket", "Pocket001")
pocket2.Profile = sketch4
pocket2.Length = Q("0.73 in")
pocket2.Reversed = True
doc.recompute()

fillet = body.newObject("PartDesign::Fillet", "Fillet")
fillet.Base = (pocket2, edges_at(pocket2, [
    (49.206, -18.239, -83.185),
    (43.209, -20.909, -83.185),
    (-55.287, 39.965, -83.185),
    (-55.287, 46.53, -83.185),
    (36.834, 97.52, -83.185),
    (42.832, 94.849, -83.185),
]))
fillet.Radius = Q("0.5 in")
doc.recompute()

fillet2 = body.newObject("PartDesign::Fillet", "Fillet001")
fillet2.Base = (fillet, edges_at(fillet, [
    (117.876, 10.692, -108.585),
    (141.027, 10.692, -108.585),
    (141.027, 63.08, -108.585),
    (117.876, 63.08, -108.585),
    (8.054, 127.019, -108.585),
    (8.054, 150.409, -108.585),
    (-44.333, 150.409, -108.585),
    (-44.333, 126.705, -108.585),
    (-44.333, -52.933, -108.585),
    (8.054, -53.246, -108.585),
    (147.377, 4.342, -105.41),
    (147.377, 69.43, -105.41),
    (14.404, 156.759, -105.41),
    (-50.683, 156.759, -105.41),
    (-50.683, -82.987, -105.41),
    (14.404, -82.987, -105.41),
]))
fillet2.Radius = Q("0.1 in")
doc.recompute()

fillet3 = body.newObject("PartDesign::Fillet", "Fillet002")
fillet3.Base = (fillet2, edges_at(fillet2, [
    (-42.625, 43.248, -80.01),
    (-55.287, 71.408, -80.01),
    (34.682, 84.618, -80.01),
    (40.809, 90.79, -80.01),
    (69.539, 82.956, -80.01),
    (41.057, -8.007, -80.01),
    (-46.003, 43.248, -80.01),
    (13.262, -34.245, -80.01),
    (-53.018, 54.235, -80.01),
    (-53.018, 32.261, -80.01),
    (48.947, 89.643, -80.01),
    (28.873, 98.582, -80.01),
    (55.321, -13.032, -80.01),
    (133.264, 69.43, -80.01),
    (35.248, -21.971, -80.01),
    (108.723, 85.568, -80.01),
    (52.889, 114.005, -80.01),
    (-50.683, 142.227, -80.01),
    (-69.916, 109.072, -80.01),
    (-76.877, 36.886, -80.01),
    (-69.916, -35.3, -80.01),
    (14.404, -68.908, -80.01),
    (52.889, -40.232, -80.01),
    (-18.139, -82.987, -80.01),
    (133.264, 4.342, -80.01),
    (147.377, 36.886, -80.01),
    (14.404, 142.681, -80.01),
    (-18.139, 156.759, -80.01),
    (108.723, -11.796, -80.01),
    (-50.683, -68.454, -80.01),
    (146.633, 5.086, -80.01),
    (146.633, 68.686, -80.01),
    (13.661, 156.015, -80.01),
    (-49.939, 156.015, -80.01),
    (-49.939, -82.243, -80.01),
    (13.661, -82.243, -80.01),
    (47.183, -14.179, -80.01),
    (118.681, 25.932, -80.01),
    (108.279, 24.886, -80.01),
    (97.01, 6.956, -80.01),
    (72.727, -7.764, -80.01),
    (-3.36, -41.645, -80.01),
    (-6.233, -43.893, -80.01),
    (-7.186, -54.225, -80.01),
    (-18.139, -61.397, -80.01),
    (-29.093, -54.225, -80.01),
    (-30.046, -43.893, -80.01),
    (-49.096, -28.098, -80.01),
    (-55.287, 8.726, -80.01),
    (-49.096, 101.87, -80.01),
    (-30.046, 117.666, -80.01),
    (-29.093, 127.997, -80.01),
    (-18.139, 135.169, -80.01),
    (-7.186, 127.997, -80.01),
    (-6.233, 117.666, -80.01),
    (-3.36, 115.417, -80.01),
    (10.075, 109.436, -80.01),
    (97.01, 66.817, -80.01),
    (108.279, 48.886, -80.01),
    (118.681, 47.84, -80.01),
    (125.787, 36.886, -80.01),
]))
fillet3.Radius = Q("0.05 in")

doc.recompute()
